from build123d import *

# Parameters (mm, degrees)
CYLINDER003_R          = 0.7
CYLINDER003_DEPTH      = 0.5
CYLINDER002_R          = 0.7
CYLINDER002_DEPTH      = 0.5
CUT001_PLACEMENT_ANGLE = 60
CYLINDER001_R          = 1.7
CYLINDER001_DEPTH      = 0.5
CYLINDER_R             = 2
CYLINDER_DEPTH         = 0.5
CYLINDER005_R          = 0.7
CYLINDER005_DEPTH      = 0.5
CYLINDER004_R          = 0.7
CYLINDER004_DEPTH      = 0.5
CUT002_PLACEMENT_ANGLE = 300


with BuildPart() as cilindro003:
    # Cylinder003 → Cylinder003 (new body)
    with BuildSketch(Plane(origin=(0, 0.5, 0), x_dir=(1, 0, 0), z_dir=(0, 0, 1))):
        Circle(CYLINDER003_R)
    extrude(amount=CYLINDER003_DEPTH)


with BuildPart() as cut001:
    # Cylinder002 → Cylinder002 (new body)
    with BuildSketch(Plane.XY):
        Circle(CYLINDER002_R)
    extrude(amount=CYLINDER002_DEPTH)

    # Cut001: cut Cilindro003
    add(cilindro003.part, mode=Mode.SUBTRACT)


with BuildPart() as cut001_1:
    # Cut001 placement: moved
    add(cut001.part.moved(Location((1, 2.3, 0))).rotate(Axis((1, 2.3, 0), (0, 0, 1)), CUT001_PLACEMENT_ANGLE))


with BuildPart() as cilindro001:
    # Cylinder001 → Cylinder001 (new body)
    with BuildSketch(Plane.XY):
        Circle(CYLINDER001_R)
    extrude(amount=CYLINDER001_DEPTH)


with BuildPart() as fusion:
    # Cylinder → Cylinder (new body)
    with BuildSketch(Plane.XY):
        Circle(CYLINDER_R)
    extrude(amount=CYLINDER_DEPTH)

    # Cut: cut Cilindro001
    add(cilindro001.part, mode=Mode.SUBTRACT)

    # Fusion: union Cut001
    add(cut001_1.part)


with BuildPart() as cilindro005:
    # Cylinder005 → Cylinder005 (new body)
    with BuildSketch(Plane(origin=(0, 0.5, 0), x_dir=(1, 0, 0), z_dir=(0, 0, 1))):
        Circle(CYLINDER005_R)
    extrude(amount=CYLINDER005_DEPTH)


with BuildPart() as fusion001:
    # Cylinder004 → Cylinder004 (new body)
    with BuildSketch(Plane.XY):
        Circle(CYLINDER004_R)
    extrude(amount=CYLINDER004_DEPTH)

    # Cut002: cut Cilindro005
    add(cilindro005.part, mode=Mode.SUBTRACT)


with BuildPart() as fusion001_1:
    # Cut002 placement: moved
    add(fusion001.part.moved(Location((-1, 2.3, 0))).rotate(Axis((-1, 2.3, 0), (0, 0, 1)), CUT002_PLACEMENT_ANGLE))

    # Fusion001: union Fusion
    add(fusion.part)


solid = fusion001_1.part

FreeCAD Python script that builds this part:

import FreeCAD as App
import Part
import Sketcher
Q = App.Units.Quantity

doc = App.newDocument("Part")
body = doc.addObject("PartDesign::Body", "Body")

# Sketch on XY plane
sketch1 = body.newObject("Sketcher::SketchObject", "Sketch")
sketch1.AttachmentSupport = (doc.getObject("XY_Plane"), [""])
sketch1.MapMode = "FlatFace"
sketch1.addGeometry(Part.Circle(App.Vector(0, 0.5, 0), App.Vector(0, 0, 1), 0.7), False)
sketch1.addConstraint(Sketcher.Constraint("PointOnObject", 0, 3, -2))
sketch1.addConstraint(Sketcher.Constraint("Diameter", 0, Q("1.4 mm")))
sketch1.addConstraint(Sketcher.Constraint("DistanceY", -1, 1, 0, 3, Q("0.5 mm")))
pad1 = body.newObject("PartDesign::Pad", "Pad")
pad1.Profile = sketch1
pad1.Length = 0.5
body2 = doc.addObject("PartDesign::Body", "Body001")

# Sketch on XY plane
sketch2 = body2.newObject("Sketcher::SketchObject", "Sketch001")
sketch2.AttachmentSupport = (doc.getObject("XY_Plane001"), [""])
sketch2.MapMode = "FlatFace"
sketch2.addGeometry(Part.Circle(App.Vector(0, 0, 0), App.Vector(0, 0, 1), 0.7), False)
sketch2.addConstraint(Sketcher.Constraint("Coincident", 0, 3, -1, 1))
sketch2.addConstraint(Sketcher.Constraint("Diameter", 0, Q("1.4 mm")))
pad2 = body2.newObject("PartDesign::Pad", "Pad001")
pad2.Profile = sketch2
pad2.Length = 0.5
doc.recompute()

boolean = body2.newObject("PartDesign::Boolean", "Boolean")
boolean.Type = "Cut"
boolean.addObjects([body])
body3 = doc.addObject("PartDesign::Body", "Body002")
doc.recompute()

body2.Placement = App.Placement(App.Vector(1, 2.3, 0), App.Rotation(App.Vector(0, 0, 1), 60))
boolean2 = body3.newObject("PartDesign::Boolean", "Boolean001")
boolean2.Type = "Fuse"
boolean2.addObjects([body2])
body4 = doc.addObject("PartDesign::Body", "Body003")

# Sketch on XY plane
sketch3 = body4.newObject("Sketcher::SketchObject", "Sketch002")
sketch3.AttachmentSupport = (doc.getObject("XY_Plane003"), [""])
sketch3.MapMode = "FlatFace"
sketch3.addGeometry(Part.Circle(App.Vector(0, 0, 0), App.Vector(0, 0, 1), 1.7), False)
sketch3.addConstraint(Sketcher.Constraint("Coincident", 0, 3, -1, 1))
sketch3.addConstraint(Sketcher.Constraint("Diameter", 0, Q("3.4 mm")))
pad3 = body4.newObject("PartDesign::Pad", "Pad002")
pad3.Profile = sketch3
pad3.Length = 0.5
body5 = doc.addObject("PartDesign::Body", "Body004")

# Sketch on XY plane
sketch4 = body5.newObject("Sketcher::SketchObject", "Sketch003")
sketch4.AttachmentSupport = (doc.getObject("XY_Plane004"), [""])
sketch4.MapMode = "FlatFace"
sketch4.addGeometry(Part.Circle(App.Vector(0, 0, 0), App.Vector(0, 0, 1), 2), False)
sketch4.addConstraint(Sketcher.Constraint("Coincident", 0, 3, -1, 1))
sketch4.addConstraint(Sketcher.Constraint("Diameter", 0, Q("4 mm")))
pad4 = body5.newObject("PartDesign::Pad", "Pad003")
pad4.Profile = sketch4
pad4.Length = 0.5
doc.recompute()

boolean3 = body5.newObject("PartDesign::Boolean", "Boolean002")
boolean3.Type = "Cut"
boolean3.addObjects([body4])
doc.recompute()

boolean4 = body5.newObject("PartDesign::Boolean", "Boolean003")
boolean4.Type = "Fuse"
boolean4.addObjects([body3])
body6 = doc.addObject("PartDesign::Body", "Body005")

# Sketch on XY plane
sketch5 = body6.newObject("Sketcher::SketchObject", "Sketch004")
sketch5.AttachmentSupport = (doc.getObject("XY_Plane005"), [""])
sketch5.MapMode = "FlatFace"
sketch5.addGeometry(Part.Circle(App.Vector(0, 0.5, 0), App.Vector(0, 0, 1), 0.7), False)
sketch5.addConstraint(Sketcher.Constraint("PointOnObject", 0, 3, -2))
sketch5.addConstraint(Sketcher.Constraint("Diameter", 0, Q("1.4 mm")))
sketch5.addConstraint(Sketcher.Constraint("DistanceY", -1, 1, 0, 3, Q("0.5 mm")))
pad5 = body6.newObject("PartDesign::Pad", "Pad004")
pad5.Profile = sketch5
pad5.Length = 0.5
body7 = doc.addObject("PartDesign::Body", "Body006")

# Sketch on XY plane
sketch6 = body7.newObject("Sketcher::SketchObject", "Sketch005")
sketch6.AttachmentSupport = (doc.getObject("XY_Plane006"), [""])
sketch6.MapMode = "FlatFace"
sketch6.addGeometry(Part.Circle(App.Vector(0, 0, 0), App.Vector(0, 0, 1), 0.7), False)
sketch6.addConstraint(Sketcher.Constraint("Coincident", 0, 3, -1, 1))
sketch6.addConstraint(Sketcher.Constraint("Diameter", 0, Q("1.4 mm")))
pad6 = body7.newObject("PartDesign::Pad", "Pad005")
pad6.Profile = sketch6
pad6.Length = 0.5
doc.recompute()

boolean5 = body7.newObject("PartDesign::Boolean", "Boolean004")
boolean5.Type = "Cut"
boolean5.addObjects([body6])
body8 = doc.addObject("PartDesign::Body", "Body007")
doc.recompute()

body7.Placement = App.Placement(App.Vector(-1, 2.3, 0), App.Rotation(App.Vector(0, 0, 1), 300))
boolean6 = body8.newObject("PartDesign::Boolean", "Boolean005")
boolean6.Type = "Fuse"
boolean6.addObjects([body7])
doc.recompute()

boolean7 = body8.newObject("PartDesign::Boolean", "Boolean006")
boolean7.Type = "Fuse"
boolean7.addObjects([body5])

doc.recompute()
